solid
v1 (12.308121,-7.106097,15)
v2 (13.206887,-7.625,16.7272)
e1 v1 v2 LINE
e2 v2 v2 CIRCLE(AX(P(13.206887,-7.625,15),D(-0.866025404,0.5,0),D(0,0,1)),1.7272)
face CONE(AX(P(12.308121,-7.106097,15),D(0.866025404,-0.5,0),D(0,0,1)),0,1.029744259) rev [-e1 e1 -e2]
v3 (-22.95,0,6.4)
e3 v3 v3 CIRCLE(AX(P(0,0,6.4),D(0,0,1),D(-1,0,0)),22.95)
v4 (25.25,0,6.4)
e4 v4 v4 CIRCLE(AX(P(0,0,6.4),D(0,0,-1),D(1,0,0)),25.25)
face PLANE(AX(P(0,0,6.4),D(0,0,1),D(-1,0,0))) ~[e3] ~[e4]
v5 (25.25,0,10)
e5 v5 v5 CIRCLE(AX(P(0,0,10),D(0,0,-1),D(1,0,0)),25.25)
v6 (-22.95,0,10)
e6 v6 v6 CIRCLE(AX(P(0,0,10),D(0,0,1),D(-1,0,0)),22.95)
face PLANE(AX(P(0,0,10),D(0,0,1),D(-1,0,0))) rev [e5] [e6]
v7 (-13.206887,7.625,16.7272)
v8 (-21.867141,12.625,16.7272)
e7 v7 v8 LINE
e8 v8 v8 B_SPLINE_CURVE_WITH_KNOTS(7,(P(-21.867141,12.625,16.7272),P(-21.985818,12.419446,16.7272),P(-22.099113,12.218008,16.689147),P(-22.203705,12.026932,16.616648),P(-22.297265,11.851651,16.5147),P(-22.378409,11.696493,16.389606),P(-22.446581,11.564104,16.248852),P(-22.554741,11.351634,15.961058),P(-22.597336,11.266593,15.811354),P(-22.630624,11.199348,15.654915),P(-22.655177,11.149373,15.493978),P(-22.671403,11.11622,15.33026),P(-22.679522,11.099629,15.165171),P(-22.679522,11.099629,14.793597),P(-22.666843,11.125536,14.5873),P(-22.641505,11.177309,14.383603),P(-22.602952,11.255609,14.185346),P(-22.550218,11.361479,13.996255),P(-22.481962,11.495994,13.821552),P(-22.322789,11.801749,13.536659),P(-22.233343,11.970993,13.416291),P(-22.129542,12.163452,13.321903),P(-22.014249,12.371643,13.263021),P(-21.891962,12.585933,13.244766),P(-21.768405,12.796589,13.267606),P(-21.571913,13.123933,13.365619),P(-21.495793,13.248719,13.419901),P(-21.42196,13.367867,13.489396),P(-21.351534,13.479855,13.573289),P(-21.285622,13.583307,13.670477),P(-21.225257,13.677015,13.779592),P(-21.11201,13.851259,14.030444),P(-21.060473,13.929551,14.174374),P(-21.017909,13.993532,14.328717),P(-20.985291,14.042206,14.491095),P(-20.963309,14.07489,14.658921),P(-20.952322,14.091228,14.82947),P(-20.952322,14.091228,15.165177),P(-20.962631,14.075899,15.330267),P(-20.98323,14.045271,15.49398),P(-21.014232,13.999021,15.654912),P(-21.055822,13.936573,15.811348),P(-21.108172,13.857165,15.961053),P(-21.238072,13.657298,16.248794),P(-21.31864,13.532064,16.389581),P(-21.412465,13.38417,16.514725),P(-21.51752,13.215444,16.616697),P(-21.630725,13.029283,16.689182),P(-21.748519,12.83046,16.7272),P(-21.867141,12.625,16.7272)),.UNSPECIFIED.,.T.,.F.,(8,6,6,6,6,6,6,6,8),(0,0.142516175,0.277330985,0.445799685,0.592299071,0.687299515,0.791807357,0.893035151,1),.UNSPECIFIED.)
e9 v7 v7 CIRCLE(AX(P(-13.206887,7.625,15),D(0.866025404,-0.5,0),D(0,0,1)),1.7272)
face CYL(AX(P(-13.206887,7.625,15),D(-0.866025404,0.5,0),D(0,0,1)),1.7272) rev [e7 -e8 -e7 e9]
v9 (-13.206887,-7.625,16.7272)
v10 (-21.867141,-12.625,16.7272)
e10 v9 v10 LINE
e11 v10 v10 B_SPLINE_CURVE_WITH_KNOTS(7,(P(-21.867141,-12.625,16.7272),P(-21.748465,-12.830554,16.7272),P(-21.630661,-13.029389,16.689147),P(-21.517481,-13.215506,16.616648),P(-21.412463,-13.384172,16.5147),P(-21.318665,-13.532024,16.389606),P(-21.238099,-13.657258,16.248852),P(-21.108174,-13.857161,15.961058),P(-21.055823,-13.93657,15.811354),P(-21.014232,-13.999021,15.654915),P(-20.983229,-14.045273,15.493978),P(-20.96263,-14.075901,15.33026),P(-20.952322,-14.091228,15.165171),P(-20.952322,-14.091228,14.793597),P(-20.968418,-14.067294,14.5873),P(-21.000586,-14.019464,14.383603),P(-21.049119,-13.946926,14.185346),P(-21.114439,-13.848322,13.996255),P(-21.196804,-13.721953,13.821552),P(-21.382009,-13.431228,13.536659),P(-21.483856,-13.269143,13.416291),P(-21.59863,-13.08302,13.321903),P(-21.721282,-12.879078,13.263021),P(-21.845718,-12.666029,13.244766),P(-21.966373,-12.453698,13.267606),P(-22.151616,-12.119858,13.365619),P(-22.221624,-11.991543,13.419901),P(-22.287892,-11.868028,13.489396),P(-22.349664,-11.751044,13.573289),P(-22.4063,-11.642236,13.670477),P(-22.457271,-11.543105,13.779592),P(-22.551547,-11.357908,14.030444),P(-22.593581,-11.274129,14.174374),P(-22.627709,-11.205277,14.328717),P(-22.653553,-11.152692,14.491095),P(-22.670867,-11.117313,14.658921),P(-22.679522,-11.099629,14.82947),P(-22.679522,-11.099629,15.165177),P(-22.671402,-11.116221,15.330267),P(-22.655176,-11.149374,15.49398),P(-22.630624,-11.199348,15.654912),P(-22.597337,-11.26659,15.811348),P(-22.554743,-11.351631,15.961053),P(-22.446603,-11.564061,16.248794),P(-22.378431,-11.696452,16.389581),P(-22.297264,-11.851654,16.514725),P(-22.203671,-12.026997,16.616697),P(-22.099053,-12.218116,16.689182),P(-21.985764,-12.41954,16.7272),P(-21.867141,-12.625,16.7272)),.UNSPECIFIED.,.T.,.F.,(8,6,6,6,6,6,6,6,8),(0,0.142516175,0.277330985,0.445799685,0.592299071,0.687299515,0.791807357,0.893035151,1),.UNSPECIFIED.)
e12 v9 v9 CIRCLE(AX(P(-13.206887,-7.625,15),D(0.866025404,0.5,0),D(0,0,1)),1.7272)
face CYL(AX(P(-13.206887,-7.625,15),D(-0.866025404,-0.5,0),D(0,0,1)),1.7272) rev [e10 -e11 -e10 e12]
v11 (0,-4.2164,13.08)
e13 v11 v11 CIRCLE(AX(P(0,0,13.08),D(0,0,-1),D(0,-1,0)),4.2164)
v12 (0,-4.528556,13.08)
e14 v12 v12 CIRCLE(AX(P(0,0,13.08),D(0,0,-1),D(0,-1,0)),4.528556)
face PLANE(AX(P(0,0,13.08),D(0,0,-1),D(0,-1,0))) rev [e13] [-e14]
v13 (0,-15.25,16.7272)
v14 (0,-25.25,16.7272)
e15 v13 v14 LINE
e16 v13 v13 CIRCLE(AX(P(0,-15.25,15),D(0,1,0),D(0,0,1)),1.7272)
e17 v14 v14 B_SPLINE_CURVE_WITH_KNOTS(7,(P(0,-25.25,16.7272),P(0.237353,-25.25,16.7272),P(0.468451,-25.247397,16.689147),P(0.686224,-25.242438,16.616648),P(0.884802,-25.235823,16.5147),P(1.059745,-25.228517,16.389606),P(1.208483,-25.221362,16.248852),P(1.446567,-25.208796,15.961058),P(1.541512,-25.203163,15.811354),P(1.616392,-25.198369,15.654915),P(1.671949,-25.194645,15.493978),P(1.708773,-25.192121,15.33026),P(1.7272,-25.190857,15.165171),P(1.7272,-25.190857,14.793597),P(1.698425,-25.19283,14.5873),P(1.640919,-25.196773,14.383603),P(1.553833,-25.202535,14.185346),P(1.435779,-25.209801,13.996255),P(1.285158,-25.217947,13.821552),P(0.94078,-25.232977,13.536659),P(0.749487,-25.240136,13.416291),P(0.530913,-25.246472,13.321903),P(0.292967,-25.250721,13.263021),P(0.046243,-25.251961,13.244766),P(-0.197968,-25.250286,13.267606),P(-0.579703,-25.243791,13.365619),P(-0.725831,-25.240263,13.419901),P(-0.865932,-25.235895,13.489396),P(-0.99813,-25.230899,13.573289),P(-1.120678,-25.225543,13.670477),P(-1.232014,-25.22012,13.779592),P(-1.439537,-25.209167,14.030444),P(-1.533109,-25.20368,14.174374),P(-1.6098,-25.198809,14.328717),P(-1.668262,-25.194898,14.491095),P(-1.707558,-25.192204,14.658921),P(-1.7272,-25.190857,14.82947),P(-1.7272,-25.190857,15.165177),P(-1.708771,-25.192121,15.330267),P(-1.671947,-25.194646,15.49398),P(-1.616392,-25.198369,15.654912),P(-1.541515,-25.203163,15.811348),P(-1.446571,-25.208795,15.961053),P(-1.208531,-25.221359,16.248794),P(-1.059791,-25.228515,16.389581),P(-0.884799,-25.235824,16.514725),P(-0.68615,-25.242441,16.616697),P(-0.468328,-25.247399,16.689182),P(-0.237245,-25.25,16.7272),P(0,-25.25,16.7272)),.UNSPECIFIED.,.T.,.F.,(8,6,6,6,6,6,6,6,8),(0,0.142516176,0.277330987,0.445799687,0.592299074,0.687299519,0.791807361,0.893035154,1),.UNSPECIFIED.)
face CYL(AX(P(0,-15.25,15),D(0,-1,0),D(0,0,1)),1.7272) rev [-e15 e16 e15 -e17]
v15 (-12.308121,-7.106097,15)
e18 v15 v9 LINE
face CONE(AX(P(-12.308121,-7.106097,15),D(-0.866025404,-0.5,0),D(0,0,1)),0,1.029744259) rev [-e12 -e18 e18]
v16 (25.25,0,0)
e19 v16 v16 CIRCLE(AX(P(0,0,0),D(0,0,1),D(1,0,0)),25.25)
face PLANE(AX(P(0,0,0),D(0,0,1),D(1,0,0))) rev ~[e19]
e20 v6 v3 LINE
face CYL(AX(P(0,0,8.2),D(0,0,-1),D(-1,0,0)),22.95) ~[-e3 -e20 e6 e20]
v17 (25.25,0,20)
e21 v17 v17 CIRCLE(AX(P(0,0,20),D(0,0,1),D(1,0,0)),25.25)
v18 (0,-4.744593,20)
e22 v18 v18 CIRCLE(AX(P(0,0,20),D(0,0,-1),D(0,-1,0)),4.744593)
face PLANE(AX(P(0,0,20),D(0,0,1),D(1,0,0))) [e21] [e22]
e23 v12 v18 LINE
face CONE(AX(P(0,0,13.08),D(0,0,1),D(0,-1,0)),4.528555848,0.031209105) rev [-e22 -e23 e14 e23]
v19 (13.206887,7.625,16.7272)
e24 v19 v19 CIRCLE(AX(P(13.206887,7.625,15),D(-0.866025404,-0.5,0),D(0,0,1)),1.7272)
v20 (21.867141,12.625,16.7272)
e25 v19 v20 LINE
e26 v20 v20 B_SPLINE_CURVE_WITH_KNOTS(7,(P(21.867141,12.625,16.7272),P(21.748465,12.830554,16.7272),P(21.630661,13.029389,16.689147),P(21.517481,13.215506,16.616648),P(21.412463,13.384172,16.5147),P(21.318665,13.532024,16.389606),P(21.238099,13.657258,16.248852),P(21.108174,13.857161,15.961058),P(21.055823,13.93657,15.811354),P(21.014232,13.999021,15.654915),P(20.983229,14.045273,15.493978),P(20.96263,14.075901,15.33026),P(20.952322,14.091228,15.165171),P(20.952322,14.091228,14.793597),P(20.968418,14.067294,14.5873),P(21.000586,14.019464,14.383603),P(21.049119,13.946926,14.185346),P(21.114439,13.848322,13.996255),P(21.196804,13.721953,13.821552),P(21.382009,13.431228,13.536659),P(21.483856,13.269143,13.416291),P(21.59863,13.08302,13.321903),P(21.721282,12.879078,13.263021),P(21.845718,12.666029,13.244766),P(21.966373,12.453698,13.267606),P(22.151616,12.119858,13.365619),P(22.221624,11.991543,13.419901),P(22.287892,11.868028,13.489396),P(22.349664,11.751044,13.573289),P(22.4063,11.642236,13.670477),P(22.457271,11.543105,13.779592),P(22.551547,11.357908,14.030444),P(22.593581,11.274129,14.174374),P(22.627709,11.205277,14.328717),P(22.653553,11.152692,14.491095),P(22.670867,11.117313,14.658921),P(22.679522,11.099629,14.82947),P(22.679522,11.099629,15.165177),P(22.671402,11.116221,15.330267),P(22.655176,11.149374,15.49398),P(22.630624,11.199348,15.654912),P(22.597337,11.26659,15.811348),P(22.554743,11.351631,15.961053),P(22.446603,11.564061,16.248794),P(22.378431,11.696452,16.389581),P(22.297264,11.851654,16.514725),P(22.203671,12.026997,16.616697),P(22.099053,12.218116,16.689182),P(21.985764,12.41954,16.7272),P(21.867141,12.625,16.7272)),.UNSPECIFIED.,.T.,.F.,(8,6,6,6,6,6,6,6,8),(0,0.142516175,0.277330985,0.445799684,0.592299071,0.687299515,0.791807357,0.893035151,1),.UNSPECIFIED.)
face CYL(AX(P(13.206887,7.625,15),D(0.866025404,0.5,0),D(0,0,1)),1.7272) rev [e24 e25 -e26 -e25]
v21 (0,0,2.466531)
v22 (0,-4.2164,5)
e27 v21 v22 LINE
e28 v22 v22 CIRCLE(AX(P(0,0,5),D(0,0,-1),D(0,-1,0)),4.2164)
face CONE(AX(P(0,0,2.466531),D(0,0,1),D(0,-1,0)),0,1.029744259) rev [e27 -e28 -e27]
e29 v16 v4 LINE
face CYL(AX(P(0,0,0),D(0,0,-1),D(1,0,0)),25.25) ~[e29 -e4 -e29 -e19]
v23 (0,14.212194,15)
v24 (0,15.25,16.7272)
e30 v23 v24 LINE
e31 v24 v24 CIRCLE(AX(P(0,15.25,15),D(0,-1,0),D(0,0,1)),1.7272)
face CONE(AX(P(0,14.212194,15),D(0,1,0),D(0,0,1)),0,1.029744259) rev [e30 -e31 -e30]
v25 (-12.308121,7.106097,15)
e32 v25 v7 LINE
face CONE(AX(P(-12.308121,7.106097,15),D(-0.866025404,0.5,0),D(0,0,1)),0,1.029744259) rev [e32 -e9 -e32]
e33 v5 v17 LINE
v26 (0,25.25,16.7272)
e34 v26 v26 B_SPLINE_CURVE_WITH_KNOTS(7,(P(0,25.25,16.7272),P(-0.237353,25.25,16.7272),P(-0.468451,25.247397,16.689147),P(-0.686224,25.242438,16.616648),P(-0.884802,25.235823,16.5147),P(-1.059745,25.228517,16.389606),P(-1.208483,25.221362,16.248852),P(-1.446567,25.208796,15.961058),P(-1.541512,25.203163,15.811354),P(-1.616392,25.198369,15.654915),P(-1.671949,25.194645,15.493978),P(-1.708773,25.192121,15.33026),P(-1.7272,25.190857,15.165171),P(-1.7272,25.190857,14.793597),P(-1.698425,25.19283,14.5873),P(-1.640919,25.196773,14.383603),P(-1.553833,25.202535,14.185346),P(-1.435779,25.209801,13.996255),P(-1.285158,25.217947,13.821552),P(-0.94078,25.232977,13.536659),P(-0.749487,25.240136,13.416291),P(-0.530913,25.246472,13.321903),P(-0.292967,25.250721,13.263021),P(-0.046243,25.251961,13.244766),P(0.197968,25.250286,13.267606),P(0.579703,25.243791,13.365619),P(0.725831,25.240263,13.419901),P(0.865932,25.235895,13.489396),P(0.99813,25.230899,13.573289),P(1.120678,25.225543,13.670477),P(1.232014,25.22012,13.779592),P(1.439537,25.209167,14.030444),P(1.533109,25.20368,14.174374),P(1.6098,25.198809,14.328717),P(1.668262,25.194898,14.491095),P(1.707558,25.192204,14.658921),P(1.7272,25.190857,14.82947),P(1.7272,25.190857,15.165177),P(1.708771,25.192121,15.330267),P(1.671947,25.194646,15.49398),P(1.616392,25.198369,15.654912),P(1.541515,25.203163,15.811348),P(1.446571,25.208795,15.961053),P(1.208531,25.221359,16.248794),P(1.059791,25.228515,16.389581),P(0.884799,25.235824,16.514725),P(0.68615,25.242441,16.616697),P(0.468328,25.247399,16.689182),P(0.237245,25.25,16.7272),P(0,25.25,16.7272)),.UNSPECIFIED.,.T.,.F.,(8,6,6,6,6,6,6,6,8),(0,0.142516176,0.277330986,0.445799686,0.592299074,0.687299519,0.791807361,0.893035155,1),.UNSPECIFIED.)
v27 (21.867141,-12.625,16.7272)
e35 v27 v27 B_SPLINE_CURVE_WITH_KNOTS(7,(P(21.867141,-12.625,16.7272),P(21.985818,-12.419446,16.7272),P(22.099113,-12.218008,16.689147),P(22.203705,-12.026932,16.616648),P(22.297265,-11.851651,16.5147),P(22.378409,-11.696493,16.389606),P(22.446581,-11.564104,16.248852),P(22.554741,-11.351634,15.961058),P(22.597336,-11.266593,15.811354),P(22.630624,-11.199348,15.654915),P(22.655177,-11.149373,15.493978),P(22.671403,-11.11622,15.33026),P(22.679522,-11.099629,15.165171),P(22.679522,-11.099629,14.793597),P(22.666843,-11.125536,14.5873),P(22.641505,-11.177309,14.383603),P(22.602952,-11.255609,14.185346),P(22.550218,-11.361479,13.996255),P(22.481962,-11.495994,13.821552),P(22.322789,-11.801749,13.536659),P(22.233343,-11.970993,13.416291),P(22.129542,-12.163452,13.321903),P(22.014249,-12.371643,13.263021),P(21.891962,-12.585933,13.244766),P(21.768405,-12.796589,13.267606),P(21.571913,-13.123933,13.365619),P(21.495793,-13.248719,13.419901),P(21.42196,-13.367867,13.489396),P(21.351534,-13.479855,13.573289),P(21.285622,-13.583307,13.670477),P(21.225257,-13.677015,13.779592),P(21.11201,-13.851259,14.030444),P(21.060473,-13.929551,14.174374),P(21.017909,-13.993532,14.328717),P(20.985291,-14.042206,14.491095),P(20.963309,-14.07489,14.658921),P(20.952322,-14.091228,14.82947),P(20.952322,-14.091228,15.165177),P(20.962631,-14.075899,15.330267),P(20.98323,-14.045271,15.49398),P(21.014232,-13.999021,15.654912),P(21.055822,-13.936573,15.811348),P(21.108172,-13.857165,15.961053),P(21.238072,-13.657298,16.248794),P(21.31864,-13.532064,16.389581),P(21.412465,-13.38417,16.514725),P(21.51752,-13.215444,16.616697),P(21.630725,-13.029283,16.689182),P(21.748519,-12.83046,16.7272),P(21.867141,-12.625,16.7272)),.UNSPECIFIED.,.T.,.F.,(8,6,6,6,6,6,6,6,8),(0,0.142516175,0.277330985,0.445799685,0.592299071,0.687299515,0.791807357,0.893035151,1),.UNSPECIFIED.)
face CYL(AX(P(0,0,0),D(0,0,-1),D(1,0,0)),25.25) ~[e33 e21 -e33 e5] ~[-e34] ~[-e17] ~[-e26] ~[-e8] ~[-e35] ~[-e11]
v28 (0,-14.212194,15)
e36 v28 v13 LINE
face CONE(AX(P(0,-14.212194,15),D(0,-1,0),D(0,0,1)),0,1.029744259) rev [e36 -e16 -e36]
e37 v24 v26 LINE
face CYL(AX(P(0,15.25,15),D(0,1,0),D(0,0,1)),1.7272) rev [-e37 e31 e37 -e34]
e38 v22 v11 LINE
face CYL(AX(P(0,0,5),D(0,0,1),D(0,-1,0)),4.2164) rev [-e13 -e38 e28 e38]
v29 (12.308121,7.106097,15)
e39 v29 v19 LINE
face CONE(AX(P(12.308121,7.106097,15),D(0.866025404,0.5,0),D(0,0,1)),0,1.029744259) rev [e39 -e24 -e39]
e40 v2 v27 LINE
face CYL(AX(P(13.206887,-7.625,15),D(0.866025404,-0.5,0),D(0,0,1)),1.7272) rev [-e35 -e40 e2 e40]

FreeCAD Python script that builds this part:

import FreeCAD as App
import Part
import Sketcher
Q = App.Units.Quantity


def add_polygon(sketch, points):
    """Adds a closed chain of lines whose ends are joined by coincident constraints."""
    first, n = sketch.GeometryCount, len(points)
    for a, b in zip(points, points[1:] + points[:1]):
        sketch.addGeometry(Part.LineSegment(App.Vector(*a, 0), App.Vector(*b, 0)), False)
    for i in range(n):
        sketch.addConstraint(Sketcher.Constraint("Coincident", first + i, 2, first + (i + 1) % n, 1))

doc = App.newDocument("Part")
body = doc.addObject("PartDesign::Body", "Body")

# Sketch on XY plane
sketch1 = body.newObject("Sketcher::SketchObject", "Sketch")
sketch1.AttachmentSupport = (doc.getObject("XY_Plane"), [""])
sketch1.MapMode = "FlatFace"
sketch1.addGeometry(Part.Circle(App.Vector(0, 0, 0), App.Vector(0, 0, 1), 25), False)
sketch1.addConstraint([
    Sketcher.Constraint("Coincident", 0, 3, -1, 1),
    Sketcher.Constraint("Diameter", 0, Q("50.5 mm")),
])
pad1 = body.newObject("PartDesign::Pad", "Pad")
pad1.Profile = sketch1
pad1.Length = 20

# Sketch on YZ plane
sketch2 = body.newObject("Sketcher::SketchObject", "Sketch001")
sketch2.AttachmentSupport = (doc.getObject("YZ_Plane"), [""])
sketch2.MapMode = "FlatFace"
add_polygon(sketch2, [(25.2, 10), (22.9, 10), (22.9, 6.4), (25.2, 6.4)])  # lines 0-3
sketch2.addConstraint([
    Sketcher.Constraint("Horizontal", 0),
    Sketcher.Constraint("Vertical", 1),
    Sketcher.Constraint("Horizontal", 2),
    Sketcher.Constraint("Vertical", 3),
    Sketcher.Constraint("DistanceX", 0, 2, 0, 1, Q("2.3 mm")),
    Sketcher.Constraint("DistanceY", 1, 2, 1, 1, Q("3.6 mm")),
    Sketcher.Constraint("DistanceY", -1, 1, 0, 2, Q("10 mm")),
    Sketcher.Constraint("DistanceX", -1, 1, 0, 2, Q("22.95 mm")),
])
groove = body.newObject("PartDesign::Groove", "Groove")
groove.Profile = sketch2
groove.ReferenceAxis = (sketch2, ["V_Axis"])
groove.Angle = 360

# Sketch on YZ plane
sketch3 = body.newObject("Sketcher::SketchObject", "Sketch002")
sketch3.AttachmentSupport = (doc.getObject("YZ_Plane"), [""])
sketch3.MapMode = "FlatFace"
add_polygon(sketch3, [(14.2, 15), (25.2, 15), (25.2, 16.7), (15.2, 16.7)])  # lines 0-3
sketch3.addGeometry(Part.LineSegment(App.Vector(25.2, 15, 0), App.Vector(14.2, 15, 0)), True)  # axis
sketch3.addConstraint([
    Sketcher.Constraint("Horizontal", 0),
    Sketcher.Constraint("Vertical", 1),
    Sketcher.Constraint("Horizontal", 2),
    Sketcher.Constraint("Horizontal", 4),
    Sketcher.Constraint("Coincident", 4, 1, 0, 2),
    Sketcher.Constraint("Equal", 0, 4),
    Sketcher.Constraint("DistanceX", 2, 2, 2, 1, Q("10 mm")),
    Sketcher.Constraint("Angle", 3, Q("-121 deg")),
    Sketcher.Constraint("DistanceY", -1, 1, 0, 2, Q("15 mm")),
    Sketcher.Constraint("DistanceX", -1, 1, 0, 2, Q("25.25 mm")),
    Sketcher.Constraint("DistanceY", 1, 1, 1, 2, Q("1.7272 mm")),
])
groove2 = body.newObject("PartDesign::Groove", "Groove001")
groove2.Profile = sketch3
groove2.ReferenceAxis = (sketch3, ["Axis0"])
groove2.Angle = 360
doc.recompute()

polarpattern = body.newObject("PartDesign::PolarPattern", "PolarPattern")
polarpattern.Originals = [groove2]
polarpattern.Axis = (doc.getObject("Z_Axis"), [""])
polarpattern.Angle = 360
polarpattern.Occurrences = 6
body.Tip = polarpattern

# Sketch on YZ plane
sketch4 = body.newObject("Sketcher::SketchObject", "Sketch003")
sketch4.AttachmentSupport = (doc.getObject("YZ_Plane"), [""])
sketch4.MapMode = "FlatFace"
add_polygon(sketch4, [(0, 2.47), (0, 20), (-4.74, 20), (-4.53, 13.08), (-4.22, 13.08), (-4.22, 5)])  # lines 0-5
sketch4.addConstraint([
    Sketcher.Constraint("Vertical", 0),
    Sketcher.Constraint("Horizontal", 1),
    Sketcher.Constraint("Horizontal", 3),
    Sketcher.Constraint("Vertical", 4),
    Sketcher.Constraint("PointOnObject", 0, 2, -2),
    Sketcher.Constraint("Angle", 5, Q("-31 deg")),
    Sketcher.Constraint("DistanceY", -1, 1, 0, 2, Q("20 mm")),
    Sketcher.Constraint("DistanceY", -1, 1, 4, 2, Q("5 mm")),
    Sketcher.Constraint("DistanceY", 4, 2, 4, 1, Q("8.08 mm")),
    Sketcher.Constraint("DistanceY", 0, 1, 0, 2, Q("17.533469 mm")),
    Sketcher.Constraint("Distance", 2, Q("6.923371 mm")),
    Sketcher.Constraint("DistanceX", 1, 2, 1, 1, Q("4.744593 mm")),
])
groove3 = body.newObject("PartDesign::Groove", "Groove002")
groove3.Profile = sketch4
groove3.ReferenceAxis = (sketch4, ["V_Axis"])
groove3.Angle = 360

doc.recompute()
